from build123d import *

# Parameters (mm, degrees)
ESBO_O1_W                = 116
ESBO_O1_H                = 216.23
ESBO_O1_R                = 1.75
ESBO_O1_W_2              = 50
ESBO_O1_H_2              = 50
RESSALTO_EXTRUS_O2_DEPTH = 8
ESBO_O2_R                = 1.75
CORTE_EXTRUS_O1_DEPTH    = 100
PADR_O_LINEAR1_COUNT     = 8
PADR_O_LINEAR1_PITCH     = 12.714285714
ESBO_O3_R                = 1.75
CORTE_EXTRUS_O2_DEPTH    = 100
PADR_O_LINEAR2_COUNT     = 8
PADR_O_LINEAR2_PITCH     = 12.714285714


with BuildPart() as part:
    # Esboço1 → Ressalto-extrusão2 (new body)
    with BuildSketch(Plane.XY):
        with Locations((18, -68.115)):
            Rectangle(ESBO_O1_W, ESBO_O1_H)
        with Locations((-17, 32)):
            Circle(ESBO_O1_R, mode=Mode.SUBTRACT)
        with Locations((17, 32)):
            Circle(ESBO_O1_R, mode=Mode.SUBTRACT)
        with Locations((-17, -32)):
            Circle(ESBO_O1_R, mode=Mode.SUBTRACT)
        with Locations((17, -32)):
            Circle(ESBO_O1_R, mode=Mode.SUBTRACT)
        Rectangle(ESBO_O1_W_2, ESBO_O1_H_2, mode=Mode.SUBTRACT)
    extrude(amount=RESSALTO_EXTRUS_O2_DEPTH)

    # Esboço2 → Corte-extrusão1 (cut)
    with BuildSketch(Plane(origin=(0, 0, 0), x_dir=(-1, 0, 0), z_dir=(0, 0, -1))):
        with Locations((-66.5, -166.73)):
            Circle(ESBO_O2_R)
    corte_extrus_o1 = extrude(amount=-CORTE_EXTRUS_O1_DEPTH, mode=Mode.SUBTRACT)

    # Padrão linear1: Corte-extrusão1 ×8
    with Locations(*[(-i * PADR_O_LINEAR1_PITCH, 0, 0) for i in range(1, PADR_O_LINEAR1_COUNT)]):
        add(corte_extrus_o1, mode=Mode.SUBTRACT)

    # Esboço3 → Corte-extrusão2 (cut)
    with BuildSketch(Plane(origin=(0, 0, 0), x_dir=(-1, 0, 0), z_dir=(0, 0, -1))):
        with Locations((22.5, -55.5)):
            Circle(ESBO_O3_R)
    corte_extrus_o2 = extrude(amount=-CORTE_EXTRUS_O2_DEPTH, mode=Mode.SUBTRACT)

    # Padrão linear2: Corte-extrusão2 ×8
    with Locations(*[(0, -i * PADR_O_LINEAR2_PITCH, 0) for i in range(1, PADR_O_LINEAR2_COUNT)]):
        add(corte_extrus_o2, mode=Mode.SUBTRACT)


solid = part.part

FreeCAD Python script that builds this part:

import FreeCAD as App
import Part
import Sketcher

V = App.Vector

doc = App.newDocument("Part")
params = doc.addObject("Spreadsheet::Sheet", "Params")
for row, (alias, value) in enumerate([
    ("sketch1_diameter", "3.5 mm"),
    ("sketch1_width", "116 mm"),
    ("sketch1_width2", "50 mm"),
    ("sketch1_height", "216.23 mm"),
    ("pad1_length", "8 mm"),
    ("sketch2_diameter", "3.5 mm"),
    ("pocket1_length", "100 mm"),
    ("linearpattern_pitch", "12.714286 mm"),
    ("sketch3_diameter", "3.5 mm"),
    ("pocket2_length", "100 mm"),
    ("linearpattern2_pitch", "12.714286 mm"),
], start=1):
    params.set(f"A{row}", alias)
    params.set(f"B{row}", "=" + value)
    params.setAlias(f"B{row}", alias)

body = doc.addObject("PartDesign::Body", "Body")

# Sketch on XY plane
sketch1 = doc.addObject("Sketcher::SketchObject", "Sketch")
body.addObject(sketch1)
sketch1.AttachmentSupport = (doc.XY_Plane, [""])
sketch1.MapMode = "FlatFace"
sketch1.addGeometry([
    Part.LineSegment(V(-40, 40, 0), V(-40, -176.2, 0)),  # 0
    Part.LineSegment(V(-40, -176.2, 0), V(76, -176.2, 0)),  # 1
    Part.LineSegment(V(76, -176.2, 0), V(76, 40, 0)),  # 2
    Part.LineSegment(V(76, 40, 0), V(-40, 40, 0)),  # 3
    Part.Circle(V(-17, -32, 0), V(0, 0, 1), 1.8),  # 4
    Part.Circle(V(17, -32, 0), V(0, 0, 1), 1.8),  # 5
    Part.Circle(V(-17, 32, 0), V(0, 0, 1), 1.8),  # 6
    Part.LineSegment(V(25, -25, 0), V(-25, -25, 0)),  # 7
    Part.LineSegment(V(-25, -25, 0), V(-25, 25, 0)),  # 8
    Part.LineSegment(V(-25, 25, 0), V(25, 25, 0)),  # 9
    Part.LineSegment(V(25, 25, 0), V(25, -25, 0)),  # 10
    Part.Circle(V(17, 32, 0), V(0, 0, 1), 1.8),  # 11
], False)
sketch1.addConstraint([
    Sketcher.Constraint("Coincident", 0, 2, 1, 1),
    Sketcher.Constraint("Coincident", 1, 2, 2, 1),
    Sketcher.Constraint("Coincident", 2, 2, 3, 1),
    Sketcher.Constraint("Coincident", 3, 2, 0, 1),
    Sketcher.Constraint("Coincident", 7, 2, 8, 1),
    Sketcher.Constraint("Coincident", 8, 2, 9, 1),
    Sketcher.Constraint("Coincident", 9, 2, 10, 1),
    Sketcher.Constraint("Coincident", 10, 2, 7, 1),
    Sketcher.Constraint("Vertical", 0),
    Sketcher.Constraint("Horizontal", 1),
    Sketcher.Constraint("Vertical", 2),
    Sketcher.Constraint("Horizontal", 3),
    Sketcher.Constraint("Horizontal", 7),
    Sketcher.Constraint("Vertical", 8),
    Sketcher.Constraint("Horizontal", 9),
    Sketcher.Constraint("Vertical", 10),
    Sketcher.Constraint("Equal", 4, 5),
    Sketcher.Constraint("Equal", 5, 6),
    Sketcher.Constraint("Equal", 6, 11),
    Sketcher.Constraint("Symmetric", 5, 3, 6, 3, -1, 1),
    Sketcher.Constraint("Symmetric", 4, 3, 11, 3, -1, 1),
    Sketcher.Constraint("Symmetric", 7, 2, 9, 2, -1, 1),
    Sketcher.Constraint("Symmetric", 4, 3, 5, 3, -2),
    Sketcher.Constraint("Equal", 9, 8),
    Sketcher.Constraint("Diameter", 4, 3.5),
    Sketcher.Constraint("DistanceX", 1, 1, 1, 2, 116.0),
    Sketcher.Constraint("DistanceX", 7, 2, 7, 1, 50.0),
    Sketcher.Constraint("DistanceX", 4, 3, -1, 1, 17.0),
    Sketcher.Constraint("DistanceY", 4, 3, -1, 1, 32.0),
    Sketcher.Constraint("DistanceX", 0, 2, -1, 1, 40.0),
    Sketcher.Constraint("DistanceY", -1, 1, 2, 2, 40.0),
    Sketcher.Constraint("DistanceY", 0, 2, 0, 1, 216.23),
])
sketch1.setExpression("Constraints[24]", "Params.sketch1_diameter")
sketch1.setExpression("Constraints[25]", "Params.sketch1_width")
sketch1.setExpression("Constraints[26]", "Params.sketch1_width2")
sketch1.setExpression("Constraints[31]", "Params.sketch1_height")
pad1 = doc.addObject("PartDesign::Pad", "Pad")
body.addObject(pad1)
pad1.Profile = sketch1
pad1.setExpression("Length", "Params.pad1_length")

# Sketch on XY plane
sketch2 = doc.addObject("Sketcher::SketchObject", "Sketch001")
body.addObject(sketch2)
sketch2.AttachmentSupport = (doc.XY_Plane, [""])
sketch2.MapMode = "FlatFace"
sketch2.addGeometry(Part.Circle(V(66.5, -166.7, 0), V(0, 0, 1), 1.8), False)
sketch2.addConstraint([
    Sketcher.Constraint("Diameter", 0, 3.5),
    Sketcher.Constraint("DistanceX", -1, 1, 0, 3, 66.5),
    Sketcher.Constraint("DistanceY", 0, 3, -1, 1, 166.73),
])
sketch2.setExpression("Constraints[0]", "Params.sketch2_diameter")
pocket1 = doc.addObject("PartDesign::Pocket", "Pocket")
body.addObject(pocket1)
pocket1.Profile = sketch2
pocket1.setExpression("Length", "Params.pocket1_length")
pocket1.Reversed = True
doc.recompute()

linearpattern = doc.addObject("PartDesign::LinearPattern", "LinearPattern")
body.addObject(linearpattern)
linearpattern.Originals = [pocket1]
linearpattern.Direction = (doc.X_Axis, [""])
linearpattern.Mode = "offset"
linearpattern.setExpression("Offset", "Params.linearpattern_pitch")
linearpattern.Occurrences = 8
linearpattern.Reversed = True
body.Tip = linearpattern

# Sketch on XY plane
sketch3 = doc.addObject("Sketcher::SketchObject", "Sketch002")
body.addObject(sketch3)
sketch3.AttachmentSupport = (doc.XY_Plane, [""])
sketch3.MapMode = "FlatFace"
sketch3.addGeometry(Part.Circle(V(-22.5, -55.5, 0), V(0, 0, 1), 1.8), False)
sketch3.addConstraint([
    Sketcher.Constraint("Diameter", 0, 3.5),
    Sketcher.Constraint("DistanceX", 0, 3, -1, 1, 22.5),
    Sketcher.Constraint("DistanceY", 0, 3, -1, 1, 55.5),
])
sketch3.setExpression("Constraints[0]", "Params.sketch3_diameter")
pocket2 = doc.addObject("PartDesign::Pocket", "Pocket001")
body.addObject(pocket2)
pocket2.Profile = sketch3
pocket2.setExpression("Length", "Params.pocket2_length")
pocket2.Reversed = True
doc.recompute()

linearpattern2 = doc.addObject("PartDesign::LinearPattern", "LinearPattern001")
body.addObject(linearpattern2)
linearpattern2.Originals = [pocket2]
linearpattern2.Direction = (doc.Y_Axis, [""])
linearpattern2.Mode = "offset"
linearpattern2.setExpression("Offset", "Params.linearpattern2_pitch")
linearpattern2.Occurrences = 8
linearpattern2.Reversed = True
body.Tip = linearpattern2

doc.recompute()
